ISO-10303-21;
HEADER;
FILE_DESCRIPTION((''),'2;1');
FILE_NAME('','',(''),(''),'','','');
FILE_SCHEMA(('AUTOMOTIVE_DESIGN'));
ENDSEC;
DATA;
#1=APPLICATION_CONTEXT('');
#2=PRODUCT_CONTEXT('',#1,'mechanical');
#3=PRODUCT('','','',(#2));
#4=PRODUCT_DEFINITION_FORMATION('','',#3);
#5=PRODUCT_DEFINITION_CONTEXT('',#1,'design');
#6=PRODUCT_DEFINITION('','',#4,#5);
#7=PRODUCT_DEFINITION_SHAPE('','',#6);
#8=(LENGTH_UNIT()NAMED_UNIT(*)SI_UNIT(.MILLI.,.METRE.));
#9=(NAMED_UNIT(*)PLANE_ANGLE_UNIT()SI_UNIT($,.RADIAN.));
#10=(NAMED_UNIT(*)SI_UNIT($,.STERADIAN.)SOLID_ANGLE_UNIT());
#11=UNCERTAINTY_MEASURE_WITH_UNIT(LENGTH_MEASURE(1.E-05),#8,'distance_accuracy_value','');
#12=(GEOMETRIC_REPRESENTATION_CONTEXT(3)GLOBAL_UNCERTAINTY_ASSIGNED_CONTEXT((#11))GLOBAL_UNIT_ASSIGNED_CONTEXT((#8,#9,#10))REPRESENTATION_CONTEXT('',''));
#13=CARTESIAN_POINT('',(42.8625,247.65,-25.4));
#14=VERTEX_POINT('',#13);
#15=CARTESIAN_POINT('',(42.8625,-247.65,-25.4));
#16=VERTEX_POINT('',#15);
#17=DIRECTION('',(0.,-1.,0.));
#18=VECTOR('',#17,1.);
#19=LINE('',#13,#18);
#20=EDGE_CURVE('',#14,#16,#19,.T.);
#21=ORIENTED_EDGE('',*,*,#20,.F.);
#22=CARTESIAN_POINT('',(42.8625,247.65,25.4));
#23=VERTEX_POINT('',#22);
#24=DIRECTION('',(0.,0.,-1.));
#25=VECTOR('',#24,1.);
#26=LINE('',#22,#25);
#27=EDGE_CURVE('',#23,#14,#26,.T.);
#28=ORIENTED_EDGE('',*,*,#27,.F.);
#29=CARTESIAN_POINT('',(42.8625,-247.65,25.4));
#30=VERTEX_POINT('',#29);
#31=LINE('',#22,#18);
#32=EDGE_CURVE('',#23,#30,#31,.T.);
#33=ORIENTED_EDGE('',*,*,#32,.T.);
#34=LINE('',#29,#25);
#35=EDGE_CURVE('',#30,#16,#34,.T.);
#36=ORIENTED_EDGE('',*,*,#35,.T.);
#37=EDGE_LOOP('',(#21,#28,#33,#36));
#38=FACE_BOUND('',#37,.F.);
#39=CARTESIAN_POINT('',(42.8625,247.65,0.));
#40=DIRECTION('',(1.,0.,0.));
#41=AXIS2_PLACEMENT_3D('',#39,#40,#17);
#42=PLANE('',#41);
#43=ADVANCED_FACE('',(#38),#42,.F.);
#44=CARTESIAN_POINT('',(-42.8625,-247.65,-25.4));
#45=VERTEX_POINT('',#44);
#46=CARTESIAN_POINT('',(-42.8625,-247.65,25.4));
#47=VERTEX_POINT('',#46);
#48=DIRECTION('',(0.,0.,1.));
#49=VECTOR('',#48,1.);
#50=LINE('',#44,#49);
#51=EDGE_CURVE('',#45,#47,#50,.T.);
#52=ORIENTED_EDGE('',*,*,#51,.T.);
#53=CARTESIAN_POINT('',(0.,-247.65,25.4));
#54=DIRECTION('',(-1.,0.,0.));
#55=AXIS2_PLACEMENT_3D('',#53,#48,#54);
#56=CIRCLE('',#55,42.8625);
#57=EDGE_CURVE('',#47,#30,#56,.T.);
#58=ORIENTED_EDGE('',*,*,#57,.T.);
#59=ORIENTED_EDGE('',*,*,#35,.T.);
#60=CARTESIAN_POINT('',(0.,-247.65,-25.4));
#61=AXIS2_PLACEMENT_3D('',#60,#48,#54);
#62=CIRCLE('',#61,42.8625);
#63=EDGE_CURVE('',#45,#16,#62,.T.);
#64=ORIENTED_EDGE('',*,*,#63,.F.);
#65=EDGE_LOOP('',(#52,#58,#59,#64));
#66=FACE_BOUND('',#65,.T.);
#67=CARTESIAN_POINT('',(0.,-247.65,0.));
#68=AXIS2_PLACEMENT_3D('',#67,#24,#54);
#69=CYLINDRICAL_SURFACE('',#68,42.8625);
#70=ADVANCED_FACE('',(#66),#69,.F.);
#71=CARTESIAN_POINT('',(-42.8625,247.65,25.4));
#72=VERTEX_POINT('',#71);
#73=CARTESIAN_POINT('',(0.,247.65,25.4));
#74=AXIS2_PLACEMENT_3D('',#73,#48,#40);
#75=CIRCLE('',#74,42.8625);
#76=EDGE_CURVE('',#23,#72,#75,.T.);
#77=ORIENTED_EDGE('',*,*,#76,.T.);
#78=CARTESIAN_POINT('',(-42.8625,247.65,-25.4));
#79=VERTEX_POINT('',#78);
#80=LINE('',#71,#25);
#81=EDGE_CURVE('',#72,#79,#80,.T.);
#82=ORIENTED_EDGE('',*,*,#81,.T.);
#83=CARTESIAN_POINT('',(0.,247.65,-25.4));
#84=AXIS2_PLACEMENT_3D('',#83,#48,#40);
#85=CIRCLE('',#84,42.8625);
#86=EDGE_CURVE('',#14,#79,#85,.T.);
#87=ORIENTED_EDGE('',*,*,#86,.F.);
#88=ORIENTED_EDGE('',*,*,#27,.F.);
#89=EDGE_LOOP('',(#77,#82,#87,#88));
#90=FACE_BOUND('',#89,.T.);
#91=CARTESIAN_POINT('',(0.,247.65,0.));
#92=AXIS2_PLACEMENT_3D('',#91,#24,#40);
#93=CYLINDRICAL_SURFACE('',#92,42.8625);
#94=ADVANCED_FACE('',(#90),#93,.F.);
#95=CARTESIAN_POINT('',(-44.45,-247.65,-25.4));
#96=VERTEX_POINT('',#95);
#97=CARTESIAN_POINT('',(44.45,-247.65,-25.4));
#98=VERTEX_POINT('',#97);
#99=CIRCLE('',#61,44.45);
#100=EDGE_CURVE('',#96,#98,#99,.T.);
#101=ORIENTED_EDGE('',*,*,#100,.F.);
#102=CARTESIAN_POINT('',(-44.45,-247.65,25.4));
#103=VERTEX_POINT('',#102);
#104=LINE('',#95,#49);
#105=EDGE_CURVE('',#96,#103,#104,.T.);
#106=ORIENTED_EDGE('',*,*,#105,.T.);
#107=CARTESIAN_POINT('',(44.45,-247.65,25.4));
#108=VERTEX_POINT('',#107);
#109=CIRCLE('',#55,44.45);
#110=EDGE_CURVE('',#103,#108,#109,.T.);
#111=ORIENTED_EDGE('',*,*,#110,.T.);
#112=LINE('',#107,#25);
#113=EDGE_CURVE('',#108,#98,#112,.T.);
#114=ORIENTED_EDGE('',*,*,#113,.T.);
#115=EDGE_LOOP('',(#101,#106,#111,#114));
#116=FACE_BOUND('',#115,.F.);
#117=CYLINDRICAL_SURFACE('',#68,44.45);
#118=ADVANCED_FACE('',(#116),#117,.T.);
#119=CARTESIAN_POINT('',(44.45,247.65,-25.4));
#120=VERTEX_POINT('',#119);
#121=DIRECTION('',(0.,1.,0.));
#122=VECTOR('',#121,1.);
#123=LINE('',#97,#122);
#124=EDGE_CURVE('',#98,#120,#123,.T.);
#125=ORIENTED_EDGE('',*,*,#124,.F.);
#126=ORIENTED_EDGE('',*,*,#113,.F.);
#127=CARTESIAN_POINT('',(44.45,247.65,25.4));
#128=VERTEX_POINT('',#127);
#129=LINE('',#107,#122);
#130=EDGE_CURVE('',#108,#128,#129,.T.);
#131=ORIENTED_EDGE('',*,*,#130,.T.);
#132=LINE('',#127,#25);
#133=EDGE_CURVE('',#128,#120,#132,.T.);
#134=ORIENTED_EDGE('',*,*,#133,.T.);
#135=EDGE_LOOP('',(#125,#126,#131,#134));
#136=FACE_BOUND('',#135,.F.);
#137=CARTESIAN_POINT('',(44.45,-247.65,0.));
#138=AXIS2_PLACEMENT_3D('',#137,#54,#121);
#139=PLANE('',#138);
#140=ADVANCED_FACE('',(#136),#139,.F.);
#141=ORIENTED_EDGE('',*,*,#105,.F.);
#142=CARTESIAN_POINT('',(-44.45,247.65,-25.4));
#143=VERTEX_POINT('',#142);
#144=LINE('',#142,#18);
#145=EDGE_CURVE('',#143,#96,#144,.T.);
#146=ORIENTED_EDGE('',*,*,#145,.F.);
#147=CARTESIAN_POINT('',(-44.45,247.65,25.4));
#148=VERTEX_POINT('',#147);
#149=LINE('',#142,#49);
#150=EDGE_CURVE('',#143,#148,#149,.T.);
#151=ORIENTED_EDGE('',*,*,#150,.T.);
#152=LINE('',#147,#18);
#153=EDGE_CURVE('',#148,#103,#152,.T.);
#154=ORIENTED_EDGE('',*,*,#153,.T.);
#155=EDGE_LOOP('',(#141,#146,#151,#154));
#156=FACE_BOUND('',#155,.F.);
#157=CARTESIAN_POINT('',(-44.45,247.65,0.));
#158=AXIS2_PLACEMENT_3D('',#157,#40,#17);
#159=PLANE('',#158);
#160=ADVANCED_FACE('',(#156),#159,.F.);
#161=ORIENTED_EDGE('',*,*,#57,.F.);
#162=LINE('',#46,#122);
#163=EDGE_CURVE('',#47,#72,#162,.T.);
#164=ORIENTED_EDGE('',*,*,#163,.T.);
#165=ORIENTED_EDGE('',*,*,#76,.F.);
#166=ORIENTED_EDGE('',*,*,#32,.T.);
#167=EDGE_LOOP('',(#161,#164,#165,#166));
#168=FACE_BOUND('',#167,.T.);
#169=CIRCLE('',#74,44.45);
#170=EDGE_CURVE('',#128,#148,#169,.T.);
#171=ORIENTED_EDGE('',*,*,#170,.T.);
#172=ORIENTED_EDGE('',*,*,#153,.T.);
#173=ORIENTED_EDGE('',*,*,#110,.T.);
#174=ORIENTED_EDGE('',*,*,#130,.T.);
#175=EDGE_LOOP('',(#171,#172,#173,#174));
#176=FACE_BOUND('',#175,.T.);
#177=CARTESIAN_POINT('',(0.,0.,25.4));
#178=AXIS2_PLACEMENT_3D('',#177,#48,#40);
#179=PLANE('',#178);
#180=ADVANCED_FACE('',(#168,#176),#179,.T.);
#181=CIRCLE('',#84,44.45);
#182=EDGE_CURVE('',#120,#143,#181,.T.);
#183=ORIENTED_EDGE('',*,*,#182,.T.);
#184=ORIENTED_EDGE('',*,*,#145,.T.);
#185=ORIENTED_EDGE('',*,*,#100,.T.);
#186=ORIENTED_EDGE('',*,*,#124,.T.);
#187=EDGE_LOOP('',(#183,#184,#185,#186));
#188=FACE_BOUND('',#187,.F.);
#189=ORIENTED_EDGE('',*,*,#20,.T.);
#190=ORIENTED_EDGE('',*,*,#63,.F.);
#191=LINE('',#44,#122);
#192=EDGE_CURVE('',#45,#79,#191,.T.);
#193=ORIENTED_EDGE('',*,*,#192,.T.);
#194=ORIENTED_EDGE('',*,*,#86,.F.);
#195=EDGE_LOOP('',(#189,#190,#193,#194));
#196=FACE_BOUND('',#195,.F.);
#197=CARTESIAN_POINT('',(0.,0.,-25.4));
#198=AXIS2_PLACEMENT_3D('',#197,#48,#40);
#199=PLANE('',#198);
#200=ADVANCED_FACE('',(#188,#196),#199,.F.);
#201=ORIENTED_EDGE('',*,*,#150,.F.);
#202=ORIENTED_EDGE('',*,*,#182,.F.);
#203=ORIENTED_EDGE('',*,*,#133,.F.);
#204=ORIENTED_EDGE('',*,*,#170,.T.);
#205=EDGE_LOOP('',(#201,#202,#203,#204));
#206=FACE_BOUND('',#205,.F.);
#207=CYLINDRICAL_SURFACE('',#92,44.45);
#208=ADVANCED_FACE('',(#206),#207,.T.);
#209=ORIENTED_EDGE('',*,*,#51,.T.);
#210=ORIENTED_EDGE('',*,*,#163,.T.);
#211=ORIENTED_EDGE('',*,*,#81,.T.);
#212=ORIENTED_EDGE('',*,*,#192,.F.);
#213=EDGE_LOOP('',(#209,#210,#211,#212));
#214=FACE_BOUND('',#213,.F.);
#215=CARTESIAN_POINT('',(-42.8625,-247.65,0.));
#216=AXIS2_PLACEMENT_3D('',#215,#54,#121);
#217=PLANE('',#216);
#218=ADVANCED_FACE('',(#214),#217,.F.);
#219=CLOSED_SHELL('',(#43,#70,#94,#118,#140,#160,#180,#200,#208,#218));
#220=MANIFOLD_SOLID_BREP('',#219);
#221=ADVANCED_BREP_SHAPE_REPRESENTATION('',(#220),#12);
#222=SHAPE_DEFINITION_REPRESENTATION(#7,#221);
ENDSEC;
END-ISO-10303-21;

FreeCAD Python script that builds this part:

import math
import FreeCAD as App
import Part
import Sketcher
from FreeCAD import Vector
Q = App.Units.Quantity

doc = App.newDocument("Part")
params = doc.addObject("Spreadsheet::Sheet", "Params")
for row, (alias, value) in enumerate([
    ("sketch1_radius", "1.75 in"),
    ("sketch1_height", "19.5 in"),
    ("sketch1_radius2", "1.6875 in"),
    ("pad1_length", "2 in"),
], start=1):
    params.set(f"A{row}", alias)
    params.set(f"B{row}", "=" + value)
    params.setAlias(f"B{row}", alias)

body = doc.addObject("PartDesign::Body", "Body")

sketch1 = doc.addObject("Sketcher::SketchObject", "Sketch")
body.addObject(sketch1)
sketch1.AttachmentSupport = (doc.XY_Plane, [""])
sketch1.MapMode = "FlatFace"
sketch1.addGeometry([
    Part.ArcOfCircle(Part.Circle(Vector(0, 248, 0), Vector(0, 0, 1), 44), math.radians(0), math.radians(180)),
    Part.LineSegment(Vector(-44, 248, 0), Vector(-44, -248, 0)),
    Part.ArcOfCircle(Part.Circle(Vector(0, -248, 0), Vector(0, 0, 1), 44), math.radians(180), math.radians(360)),
    Part.LineSegment(Vector(44, -248, 0), Vector(44, 248, 0)),
    Part.ArcOfCircle(Part.Circle(Vector(0, -248, 0), Vector(0, 0, 1), 43), math.radians(180), math.radians(360)),
    Part.LineSegment(Vector(-43, -248, 0), Vector(-43, 248, 0)),
    Part.ArcOfCircle(Part.Circle(Vector(0, 248, 0), Vector(0, 0, 1), 43), math.radians(0), math.radians(180)),
    Part.LineSegment(Vector(43, 248, 0), Vector(43, -248, 0)),
], False)
sketch1.addConstraint([
    Sketcher.Constraint("Tangent", 0, 2, 1, 1),
    Sketcher.Constraint("Tangent", 1, 2, 2, 1),
    Sketcher.Constraint("Tangent", 2, 2, 3, 1),
    Sketcher.Constraint("Tangent", 3, 2, 0, 1),
    Sketcher.Constraint("Tangent", 4, 1, 5, 1),
    Sketcher.Constraint("Tangent", 5, 2, 6, 2),
    Sketcher.Constraint("Tangent", 6, 1, 7, 1),
    Sketcher.Constraint("Tangent", 7, 2, 4, 2),
    Sketcher.Constraint("Vertical", 1),
    Sketcher.Constraint("Vertical", 3),
    Sketcher.Constraint("Vertical", 5),
    Sketcher.Constraint("Vertical", 7),
    Sketcher.Constraint("Coincident", 4, 3, 2, 3),
    Sketcher.Constraint("Symmetric", 0, 3, 2, 3, -1, 1),
    Sketcher.Constraint("Horizontal", 6, 3, 0, 2),
    Sketcher.Constraint("Radius", 0, Q("1.75 in")),
    Sketcher.Constraint("DistanceY", 1, 2, 1, 1, Q("19.5 in")),
    Sketcher.Constraint("Radius", 4, Q("1.6875 in")),
])
sketch1.setExpression("Constraints[15]", "Params.sketch1_radius")
sketch1.setExpression("Constraints[16]", "Params.sketch1_height")
sketch1.setExpression("Constraints[17]", "Params.sketch1_radius2")
pad1 = doc.addObject("PartDesign::Pad", "Pad")
body.addObject(pad1)
pad1.Profile = sketch1
pad1.setExpression("Length", "Params.pad1_length")
pad1.Midplane = True

doc.recompute()
